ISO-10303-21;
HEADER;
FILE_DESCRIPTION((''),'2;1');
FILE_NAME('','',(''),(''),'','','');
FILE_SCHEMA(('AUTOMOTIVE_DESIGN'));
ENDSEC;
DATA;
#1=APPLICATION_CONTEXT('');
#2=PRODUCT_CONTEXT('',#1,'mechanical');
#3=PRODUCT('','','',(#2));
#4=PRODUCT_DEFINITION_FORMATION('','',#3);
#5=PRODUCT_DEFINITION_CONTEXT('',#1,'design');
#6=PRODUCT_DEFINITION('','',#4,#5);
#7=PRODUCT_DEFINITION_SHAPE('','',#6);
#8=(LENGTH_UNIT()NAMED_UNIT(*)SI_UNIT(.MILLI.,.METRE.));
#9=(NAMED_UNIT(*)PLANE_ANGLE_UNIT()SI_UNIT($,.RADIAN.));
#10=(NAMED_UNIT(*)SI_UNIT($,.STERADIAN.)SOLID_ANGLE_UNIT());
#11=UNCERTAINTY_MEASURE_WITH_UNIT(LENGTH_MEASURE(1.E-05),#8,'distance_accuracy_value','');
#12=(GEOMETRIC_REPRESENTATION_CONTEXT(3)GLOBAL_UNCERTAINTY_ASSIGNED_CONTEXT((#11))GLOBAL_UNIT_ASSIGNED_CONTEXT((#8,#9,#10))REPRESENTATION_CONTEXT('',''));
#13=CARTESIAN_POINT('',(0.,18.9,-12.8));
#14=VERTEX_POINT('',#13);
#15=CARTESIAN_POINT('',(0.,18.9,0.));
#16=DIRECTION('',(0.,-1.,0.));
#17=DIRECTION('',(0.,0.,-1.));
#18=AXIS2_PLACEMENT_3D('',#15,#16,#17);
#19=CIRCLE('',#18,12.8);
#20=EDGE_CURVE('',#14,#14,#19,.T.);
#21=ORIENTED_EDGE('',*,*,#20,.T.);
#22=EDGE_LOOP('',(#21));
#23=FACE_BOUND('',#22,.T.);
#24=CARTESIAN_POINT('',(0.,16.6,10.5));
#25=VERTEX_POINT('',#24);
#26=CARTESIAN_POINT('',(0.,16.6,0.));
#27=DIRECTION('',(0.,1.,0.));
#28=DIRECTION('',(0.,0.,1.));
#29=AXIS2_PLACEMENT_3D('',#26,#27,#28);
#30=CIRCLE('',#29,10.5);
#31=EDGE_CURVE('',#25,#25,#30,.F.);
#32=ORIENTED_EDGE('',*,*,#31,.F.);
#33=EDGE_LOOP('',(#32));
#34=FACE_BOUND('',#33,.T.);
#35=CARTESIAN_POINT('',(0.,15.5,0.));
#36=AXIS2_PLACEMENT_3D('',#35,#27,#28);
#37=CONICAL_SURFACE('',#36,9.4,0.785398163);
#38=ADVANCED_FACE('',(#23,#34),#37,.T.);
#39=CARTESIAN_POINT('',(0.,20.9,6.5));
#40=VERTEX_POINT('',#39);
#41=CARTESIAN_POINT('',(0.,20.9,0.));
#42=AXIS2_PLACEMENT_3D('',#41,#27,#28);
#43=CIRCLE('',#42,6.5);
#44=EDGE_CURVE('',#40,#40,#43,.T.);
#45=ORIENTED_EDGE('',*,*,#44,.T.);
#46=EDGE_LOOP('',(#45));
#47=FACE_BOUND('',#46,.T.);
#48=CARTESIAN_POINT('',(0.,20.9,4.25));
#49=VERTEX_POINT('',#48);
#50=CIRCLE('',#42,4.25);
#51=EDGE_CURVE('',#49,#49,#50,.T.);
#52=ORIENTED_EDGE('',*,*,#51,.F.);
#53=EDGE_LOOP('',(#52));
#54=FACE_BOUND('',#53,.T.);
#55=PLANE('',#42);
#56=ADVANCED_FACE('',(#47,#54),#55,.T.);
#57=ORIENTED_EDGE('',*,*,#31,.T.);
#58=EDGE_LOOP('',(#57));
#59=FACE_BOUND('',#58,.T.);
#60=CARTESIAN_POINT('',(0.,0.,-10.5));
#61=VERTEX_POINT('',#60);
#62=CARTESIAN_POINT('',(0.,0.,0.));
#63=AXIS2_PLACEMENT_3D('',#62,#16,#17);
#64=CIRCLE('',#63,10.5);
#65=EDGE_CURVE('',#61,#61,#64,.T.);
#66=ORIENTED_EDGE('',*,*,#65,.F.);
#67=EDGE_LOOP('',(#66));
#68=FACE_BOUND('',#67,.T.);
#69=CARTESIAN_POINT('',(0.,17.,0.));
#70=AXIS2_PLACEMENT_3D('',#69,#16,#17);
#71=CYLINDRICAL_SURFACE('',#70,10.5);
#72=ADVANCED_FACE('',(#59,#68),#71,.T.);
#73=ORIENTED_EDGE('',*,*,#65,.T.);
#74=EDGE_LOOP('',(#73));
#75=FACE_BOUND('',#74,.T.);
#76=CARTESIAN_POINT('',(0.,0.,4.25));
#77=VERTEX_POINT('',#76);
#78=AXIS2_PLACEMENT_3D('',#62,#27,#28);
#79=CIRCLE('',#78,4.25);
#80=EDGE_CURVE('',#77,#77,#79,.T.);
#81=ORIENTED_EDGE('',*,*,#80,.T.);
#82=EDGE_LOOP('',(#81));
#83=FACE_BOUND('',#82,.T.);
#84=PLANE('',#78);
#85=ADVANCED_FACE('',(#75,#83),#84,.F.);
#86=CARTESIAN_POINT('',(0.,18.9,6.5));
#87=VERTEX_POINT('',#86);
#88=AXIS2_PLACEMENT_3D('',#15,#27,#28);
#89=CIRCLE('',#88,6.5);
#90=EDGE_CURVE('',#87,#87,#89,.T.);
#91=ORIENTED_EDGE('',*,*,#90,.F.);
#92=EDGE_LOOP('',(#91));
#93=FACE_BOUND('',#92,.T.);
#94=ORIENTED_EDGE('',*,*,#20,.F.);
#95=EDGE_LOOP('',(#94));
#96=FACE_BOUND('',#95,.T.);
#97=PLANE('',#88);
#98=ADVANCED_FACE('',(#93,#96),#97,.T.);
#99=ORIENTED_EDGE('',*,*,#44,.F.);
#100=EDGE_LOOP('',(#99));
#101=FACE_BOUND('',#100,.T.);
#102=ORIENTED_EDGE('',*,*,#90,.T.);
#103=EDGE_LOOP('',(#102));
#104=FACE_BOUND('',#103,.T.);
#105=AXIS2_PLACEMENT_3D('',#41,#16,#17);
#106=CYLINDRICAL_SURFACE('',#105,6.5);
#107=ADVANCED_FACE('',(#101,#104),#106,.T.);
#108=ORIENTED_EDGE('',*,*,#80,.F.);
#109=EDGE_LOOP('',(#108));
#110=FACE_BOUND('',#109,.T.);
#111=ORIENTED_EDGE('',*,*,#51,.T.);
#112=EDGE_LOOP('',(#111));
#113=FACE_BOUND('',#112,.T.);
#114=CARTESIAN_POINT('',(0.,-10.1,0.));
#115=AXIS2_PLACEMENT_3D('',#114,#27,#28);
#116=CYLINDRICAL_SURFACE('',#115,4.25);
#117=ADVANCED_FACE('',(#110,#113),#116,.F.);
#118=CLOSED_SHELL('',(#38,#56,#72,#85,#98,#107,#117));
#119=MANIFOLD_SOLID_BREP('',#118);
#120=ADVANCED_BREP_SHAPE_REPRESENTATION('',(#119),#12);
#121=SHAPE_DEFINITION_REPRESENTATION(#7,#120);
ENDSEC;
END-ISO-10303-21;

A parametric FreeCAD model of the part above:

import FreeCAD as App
import Part
import Sketcher
Q = App.Units.Quantity

doc = App.newDocument("Part")
body = doc.addObject("PartDesign::Body", "Body")

# Sketch on XZ plane
sketch1 = body.newObject("Sketcher::SketchObject", "Sketch")
sketch1.AttachmentSupport = (doc.getObject("XZ_Plane"), [""])
sketch1.MapMode = "FlatFace"
sketch1.addGeometry(Part.Circle(App.Vector(0, 0, 0), App.Vector(0, 0, 1), 9.4), False)
sketch1.addConstraint([
    Sketcher.Constraint("Coincident", 0, 3, -1, 1),
    Sketcher.Constraint("Diameter", 0, 18.8),
])
pad1 = body.newObject("PartDesign::Pad", "Pad")
pad1.Profile = sketch1
pad1.Length = 15.5
pad1.Reversed = True

# Sketch on XY plane
sketch2 = body.newObject("Sketcher::SketchObject", "Sketch001")
sketch2.AttachmentSupport = (doc.getObject("XY_Plane"), [""])
sketch2.MapMode = "FlatFace"
sketch2.addGeometry([
    Part.LineSegment(App.Vector(12.8, 18.9, 0), App.Vector(0, 18.9, 0)),
    Part.LineSegment(App.Vector(0, 18.9, 0), App.Vector(0, 15.5, 0)),
    Part.LineSegment(App.Vector(0, 15.5, 0), App.Vector(9.4, 15.5, 0)),
    Part.LineSegment(App.Vector(9.4, 15.5, 0), App.Vector(12.8, 18.9, 0)),
], False)
sketch2.addConstraint([
    Sketcher.Constraint("Coincident", 0, 2, 1, 1),
    Sketcher.Constraint("Coincident", 1, 2, 2, 1),
    Sketcher.Constraint("Coincident", 2, 2, 3, 1),
    Sketcher.Constraint("Coincident", 3, 2, 0, 1),
    Sketcher.Constraint("Horizontal", 0),
    Sketcher.Constraint("Vertical", 1),
    Sketcher.Constraint("Horizontal", 2),
    Sketcher.Constraint("PointOnObject", 0, 2, -2),
    Sketcher.Constraint("Angle", 3, Q("45 deg")),
    Sketcher.Constraint("DistanceX", 0, 2, 0, 1, 12.8),
    Sketcher.Constraint("DistanceX", 2, 1, 2, 2, 9.4),
    Sketcher.Constraint("DistanceY", -1, 1, 0, 2, 18.9),
])
revolution = body.newObject("PartDesign::Revolution", "Revolution")
revolution.Profile = sketch2
revolution.ReferenceAxis = (sketch2, ["V_Axis"])
revolution.Angle = 360

# Sketch on XZ plane
sketch3 = body.newObject("Sketcher::SketchObject", "Sketch002")
sketch3.AttachmentSupport = (doc.getObject("XZ_Plane"), [""])
sketch3.MapMode = "FlatFace"
sketch3.AttachmentOffset = App.Placement(App.Vector(0, 0, -18.9), App.Rotation())
sketch3.addGeometry(Part.Circle(App.Vector(0, 0, 0), App.Vector(0, 0, 1), 6.5), False)
sketch3.addConstraint([
    Sketcher.Constraint("Coincident", 0, 3, -1, 1),
    Sketcher.Constraint("Diameter", 0, 13.0),
])
pad2 = body.newObject("PartDesign::Pad", "Pad001")
pad2.Profile = sketch3
pad2.Length = 2
pad2.Reversed = True

# Sketch on XZ plane
sketch4 = body.newObject("Sketcher::SketchObject", "Sketch003")
sketch4.AttachmentSupport = (doc.getObject("XZ_Plane"), [""])
sketch4.MapMode = "FlatFace"
sketch4.addGeometry(Part.Circle(App.Vector(0, 0, 0), App.Vector(0, 0, 1), 10.5), False)
sketch4.addConstraint([
    Sketcher.Constraint("Coincident", 0, 3, -1, 1),
    Sketcher.Constraint("Diameter", 0, 21.0),
])
pad3 = body.newObject("PartDesign::Pad", "Pad002")
pad3.Profile = sketch4
pad3.Length = 17
pad3.Reversed = True

# Sketch on XZ plane
sketch5 = body.newObject("Sketcher::SketchObject", "Sketch004")
sketch5.AttachmentSupport = (doc.getObject("XZ_Plane"), [""])
sketch5.MapMode = "FlatFace"
sketch5.AttachmentOffset = App.Placement(App.Vector(0, 0, -20.9), App.Rotation())
sketch5.addGeometry(Part.Circle(App.Vector(0, 0, 0), App.Vector(0, 0, 1), 4.25), False)
sketch5.addConstraint([
    Sketcher.Constraint("Coincident", 0, 3, -1, 1),
    Sketcher.Constraint("Diameter", 0, 8.5),
])
pocket1 = body.newObject("PartDesign::Pocket", "Pocket")
pocket1.Profile = sketch5
pocket1.Length = 31
pocket1.Reversed = True

doc.recompute()
